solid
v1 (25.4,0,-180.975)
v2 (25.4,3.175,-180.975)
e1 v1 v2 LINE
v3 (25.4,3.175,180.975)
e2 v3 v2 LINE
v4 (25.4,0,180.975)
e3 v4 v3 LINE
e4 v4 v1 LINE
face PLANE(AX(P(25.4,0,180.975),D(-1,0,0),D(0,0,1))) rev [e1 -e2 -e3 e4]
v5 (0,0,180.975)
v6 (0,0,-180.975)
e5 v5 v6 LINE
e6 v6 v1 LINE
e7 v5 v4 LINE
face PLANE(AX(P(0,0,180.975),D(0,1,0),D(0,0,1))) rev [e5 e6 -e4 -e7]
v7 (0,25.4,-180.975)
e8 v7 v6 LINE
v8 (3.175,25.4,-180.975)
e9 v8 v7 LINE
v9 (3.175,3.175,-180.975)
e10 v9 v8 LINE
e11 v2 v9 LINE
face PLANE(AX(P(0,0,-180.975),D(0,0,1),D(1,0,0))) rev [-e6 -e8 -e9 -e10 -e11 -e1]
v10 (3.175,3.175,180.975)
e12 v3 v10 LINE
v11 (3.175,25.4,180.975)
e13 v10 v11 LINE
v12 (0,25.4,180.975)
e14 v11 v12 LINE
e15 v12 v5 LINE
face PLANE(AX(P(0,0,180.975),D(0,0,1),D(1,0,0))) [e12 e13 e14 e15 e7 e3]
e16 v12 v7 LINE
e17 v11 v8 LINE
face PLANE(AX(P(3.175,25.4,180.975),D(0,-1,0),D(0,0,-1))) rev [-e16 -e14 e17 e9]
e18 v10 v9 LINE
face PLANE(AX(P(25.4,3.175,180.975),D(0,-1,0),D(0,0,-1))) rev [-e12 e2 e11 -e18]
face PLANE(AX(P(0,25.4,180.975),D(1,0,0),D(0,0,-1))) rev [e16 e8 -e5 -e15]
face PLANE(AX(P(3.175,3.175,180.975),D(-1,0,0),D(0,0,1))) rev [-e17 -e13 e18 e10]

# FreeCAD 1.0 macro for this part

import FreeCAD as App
import Part
import Sketcher

V = App.Vector
Q = App.Units.Quantity


def add_polygon(sketch, points):
    """Adds a closed chain of lines whose ends are joined by coincident constraints."""
    first, n = sketch.GeometryCount, len(points)
    for a, b in zip(points, points[1:] + points[:1]):
        sketch.addGeometry(Part.LineSegment(App.Vector(*a, 0), App.Vector(*b, 0)), False)
    for i in range(n):
        sketch.addConstraint(Sketcher.Constraint("Coincident", first + i, 2, first + (i + 1) % n, 1))

doc = App.newDocument("Part")
params = doc.addObject("Spreadsheet::Sheet", "Params")
for row, (alias, value) in enumerate([
    ("sketch1_width", "1 in"),
    ("sketch1_width2", "0.875 in"),
    ("pad1_length", "14.25 in"),
], start=1):
    params.set(f"A{row}", alias)
    params.set(f"B{row}", "=" + value)
    params.setAlias(f"B{row}", alias)

body = doc.addObject("PartDesign::Body", "Body")

# Sketch on XY plane
sketch1 = body.newObject("Sketcher::SketchObject", "Sketch")
sketch1.AttachmentSupport = (doc.getObject("XY_Plane"), [""])
sketch1.MapMode = "FlatFace"
add_polygon(sketch1, [(0, 25.4), (0, 0), (25.4, 0), (25.4, 3.2), (3.2, 3.2), (3.2, 25.4)])  # lines 0-5
sketch1.addConstraint(Sketcher.Constraint("Vertical", 0))
sketch1.addConstraint(Sketcher.Constraint("Horizontal", 1))
sketch1.addConstraint(Sketcher.Constraint("Vertical", 2))
sketch1.addConstraint(Sketcher.Constraint("Horizontal", 3))
sketch1.addConstraint(Sketcher.Constraint("Vertical", 4))
sketch1.addConstraint(Sketcher.Constraint("Horizontal", 5))
sketch1.addConstraint(Sketcher.Constraint("Coincident", 0, 2, -1, 1))
sketch1.addConstraint(Sketcher.Constraint("Equal", 1, 0))
sketch1.addConstraint(Sketcher.Constraint("Equal", 5, 2))
sketch1.addConstraint(Sketcher.Constraint("DistanceX", 1, 1, 1, 2, Q("1 in")))
sketch1.addConstraint(Sketcher.Constraint("DistanceX", 3, 2, 3, 1, Q("0.875 in")))
sketch1.setExpression("Constraints[15]", "Params.sketch1_width")
sketch1.setExpression("Constraints[16]", "Params.sketch1_width2")
pad1 = body.newObject("PartDesign::Pad", "Pad")
pad1.Profile = sketch1
pad1.setExpression("Length", "Params.pad1_length")
pad1.Midplane = True

doc.recompute()
